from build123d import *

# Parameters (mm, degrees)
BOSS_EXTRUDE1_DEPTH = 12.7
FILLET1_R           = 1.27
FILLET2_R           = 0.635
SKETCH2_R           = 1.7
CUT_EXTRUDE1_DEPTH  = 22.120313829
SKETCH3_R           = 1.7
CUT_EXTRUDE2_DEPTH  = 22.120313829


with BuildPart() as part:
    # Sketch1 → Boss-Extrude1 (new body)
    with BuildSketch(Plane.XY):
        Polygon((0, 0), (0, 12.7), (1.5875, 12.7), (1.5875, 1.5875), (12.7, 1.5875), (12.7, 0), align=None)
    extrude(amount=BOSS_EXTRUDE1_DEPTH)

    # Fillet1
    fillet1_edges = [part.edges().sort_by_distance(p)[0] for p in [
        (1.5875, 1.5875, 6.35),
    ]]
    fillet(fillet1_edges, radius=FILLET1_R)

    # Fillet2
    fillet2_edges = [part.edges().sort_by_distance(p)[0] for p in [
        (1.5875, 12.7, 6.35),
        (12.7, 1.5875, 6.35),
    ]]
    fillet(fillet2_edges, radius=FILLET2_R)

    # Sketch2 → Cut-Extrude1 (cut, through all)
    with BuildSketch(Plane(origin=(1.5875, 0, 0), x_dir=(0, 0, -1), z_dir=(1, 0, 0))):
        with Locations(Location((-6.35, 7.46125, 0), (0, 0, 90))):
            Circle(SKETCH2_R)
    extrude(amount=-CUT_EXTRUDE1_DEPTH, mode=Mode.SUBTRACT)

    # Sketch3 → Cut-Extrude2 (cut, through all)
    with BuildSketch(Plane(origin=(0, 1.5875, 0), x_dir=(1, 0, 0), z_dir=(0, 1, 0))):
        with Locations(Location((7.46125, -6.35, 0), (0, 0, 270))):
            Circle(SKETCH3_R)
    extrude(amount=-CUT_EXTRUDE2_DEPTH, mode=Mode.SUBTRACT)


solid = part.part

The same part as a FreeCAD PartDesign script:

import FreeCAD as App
import Part
import Sketcher
from FreeCAD import Vector
Q = App.Units.Quantity


def edges_at(feature, points):
    """Names of the edges that pass closest to the given points."""
    edges = feature.Shape.Edges
    near = lambda p: min(range(len(edges)), key=lambda i: edges[i].distToShape(Part.Vertex(*p))[0])
    return sorted({f"Edge{near(p) + 1}" for p in points})

doc = App.newDocument("Part")
body = doc.addObject("PartDesign::Body", "Body")

# Sketch on XY plane
sketch1 = body.newObject("Sketcher::SketchObject", "Sketch")
sketch1.AttachmentSupport = (doc.getObject("XY_Plane"), [""])
sketch1.MapMode = "FlatFace"
sketch1.addGeometry(Part.LineSegment(Vector(0, 12.7, 0), Vector(0, 0, 0)), False)
sketch1.addGeometry(Part.LineSegment(Vector(0, 0, 0), Vector(12.7, 0, 0)), False)
sketch1.addGeometry(Part.LineSegment(Vector(12.7, 0, 0), Vector(12.7, 1.6, 0)), False)
sketch1.addGeometry(Part.LineSegment(Vector(12.7, 1.6, 0), Vector(1.6, 1.6, 0)), False)
sketch1.addGeometry(Part.LineSegment(Vector(1.6, 1.6, 0), Vector(1.6, 12.7, 0)), False)
sketch1.addGeometry(Part.LineSegment(Vector(1.6, 12.7, 0), Vector(0, 12.7, 0)), False)
sketch1.addConstraint(Sketcher.Constraint("Coincident", 0, 2, 1, 1))
sketch1.addConstraint(Sketcher.Constraint("Coincident", 1, 2, 2, 1))
sketch1.addConstraint(Sketcher.Constraint("Coincident", 2, 2, 3, 1))
sketch1.addConstraint(Sketcher.Constraint("Coincident", 3, 2, 4, 1))
sketch1.addConstraint(Sketcher.Constraint("Coincident", 4, 2, 5, 1))
sketch1.addConstraint(Sketcher.Constraint("Coincident", 5, 2, 0, 1))
sketch1.addConstraint(Sketcher.Constraint("Vertical", 0))
sketch1.addConstraint(Sketcher.Constraint("Horizontal", 1))
sketch1.addConstraint(Sketcher.Constraint("Vertical", 2))
sketch1.addConstraint(Sketcher.Constraint("Horizontal", 3))
sketch1.addConstraint(Sketcher.Constraint("Vertical", 4))
sketch1.addConstraint(Sketcher.Constraint("Horizontal", 5))
sketch1.addConstraint(Sketcher.Constraint("Coincident", 0, 2, -1, 1))
sketch1.addConstraint(Sketcher.Constraint("Equal", 1, 0))
sketch1.addConstraint(Sketcher.Constraint("Equal", 5, 2))
sketch1.addConstraint(Sketcher.Constraint("DistanceX", 1, 1, 1, 2, Q("0.5 in")))
sketch1.addConstraint(Sketcher.Constraint("DistanceX", 3, 2, 3, 1, Q("0.4375 in")))
pad1 = body.newObject("PartDesign::Pad", "Pad")
pad1.Profile = sketch1
pad1.Length = Q("0.5 in")
doc.recompute()

fillet = body.newObject("PartDesign::Fillet", "Fillet")
fillet.Base = (pad1, edges_at(pad1, [(1.587, 1.587, 6.35)]))
fillet.Radius = Q("0.05 in")
doc.recompute()

fillet2 = body.newObject("PartDesign::Fillet", "Fillet001")
fillet2.Base = (fillet, edges_at(fillet, [(1.587, 12.7, 6.35), (12.7, 1.587, 6.35)]))
fillet2.Radius = Q("0.025 in")

# Sketch on YZ plane
sketch2 = body.newObject("Sketcher::SketchObject", "Sketch001")
sketch2.AttachmentSupport = (doc.getObject("YZ_Plane"), [""])
sketch2.MapMode = "FlatFace"
sketch2.AttachmentOffset = App.Placement(Vector(0, 0, 0.0625 * 25.4), App.Rotation())
sketch2.addGeometry(Part.Circle(Vector(7.5, 6.3, 0), Vector(0, 0, 1), 1.7), False)
sketch2.addConstraint(Sketcher.Constraint("Diameter", 0, Q("3.4 mm")))
sketch2.addConstraint(Sketcher.Constraint("DistanceY", -1, 1, 0, 3, Q("0.25 in")))
sketch2.addConstraint(Sketcher.Constraint("DistanceX", -1, 1, 0, 3, Q("7.46125 mm")))
pocket1 = body.newObject("PartDesign::Pocket", "Pocket")
pocket1.Profile = sketch2
pocket1.Type = "ThroughAll"

# Sketch on XZ plane
sketch3 = body.newObject("Sketcher::SketchObject", "Sketch002")
sketch3.AttachmentSupport = (doc.getObject("XZ_Plane"), [""])
sketch3.MapMode = "FlatFace"
sketch3.AttachmentOffset = App.Placement(Vector(0, 0, -0.0625 * 25.4), App.Rotation())
sketch3.addGeometry(Part.Circle(Vector(7.5, 6.3, 0), Vector(0, 0, 1), 1.7), False)
sketch3.addConstraint(Sketcher.Constraint("Diameter", 0, Q("3.4 mm")))
sketch3.addConstraint(Sketcher.Constraint("DistanceY", -1, 1, 0, 3, Q("0.25 in")))
sketch3.addConstraint(Sketcher.Constraint("DistanceX", -1, 1, 0, 3, Q("7.46125 mm")))
pocket2 = body.newObject("PartDesign::Pocket", "Pocket001")
pocket2.Profile = sketch3
pocket2.Type = "ThroughAll"
pocket2.Reversed = True

doc.recompute()
